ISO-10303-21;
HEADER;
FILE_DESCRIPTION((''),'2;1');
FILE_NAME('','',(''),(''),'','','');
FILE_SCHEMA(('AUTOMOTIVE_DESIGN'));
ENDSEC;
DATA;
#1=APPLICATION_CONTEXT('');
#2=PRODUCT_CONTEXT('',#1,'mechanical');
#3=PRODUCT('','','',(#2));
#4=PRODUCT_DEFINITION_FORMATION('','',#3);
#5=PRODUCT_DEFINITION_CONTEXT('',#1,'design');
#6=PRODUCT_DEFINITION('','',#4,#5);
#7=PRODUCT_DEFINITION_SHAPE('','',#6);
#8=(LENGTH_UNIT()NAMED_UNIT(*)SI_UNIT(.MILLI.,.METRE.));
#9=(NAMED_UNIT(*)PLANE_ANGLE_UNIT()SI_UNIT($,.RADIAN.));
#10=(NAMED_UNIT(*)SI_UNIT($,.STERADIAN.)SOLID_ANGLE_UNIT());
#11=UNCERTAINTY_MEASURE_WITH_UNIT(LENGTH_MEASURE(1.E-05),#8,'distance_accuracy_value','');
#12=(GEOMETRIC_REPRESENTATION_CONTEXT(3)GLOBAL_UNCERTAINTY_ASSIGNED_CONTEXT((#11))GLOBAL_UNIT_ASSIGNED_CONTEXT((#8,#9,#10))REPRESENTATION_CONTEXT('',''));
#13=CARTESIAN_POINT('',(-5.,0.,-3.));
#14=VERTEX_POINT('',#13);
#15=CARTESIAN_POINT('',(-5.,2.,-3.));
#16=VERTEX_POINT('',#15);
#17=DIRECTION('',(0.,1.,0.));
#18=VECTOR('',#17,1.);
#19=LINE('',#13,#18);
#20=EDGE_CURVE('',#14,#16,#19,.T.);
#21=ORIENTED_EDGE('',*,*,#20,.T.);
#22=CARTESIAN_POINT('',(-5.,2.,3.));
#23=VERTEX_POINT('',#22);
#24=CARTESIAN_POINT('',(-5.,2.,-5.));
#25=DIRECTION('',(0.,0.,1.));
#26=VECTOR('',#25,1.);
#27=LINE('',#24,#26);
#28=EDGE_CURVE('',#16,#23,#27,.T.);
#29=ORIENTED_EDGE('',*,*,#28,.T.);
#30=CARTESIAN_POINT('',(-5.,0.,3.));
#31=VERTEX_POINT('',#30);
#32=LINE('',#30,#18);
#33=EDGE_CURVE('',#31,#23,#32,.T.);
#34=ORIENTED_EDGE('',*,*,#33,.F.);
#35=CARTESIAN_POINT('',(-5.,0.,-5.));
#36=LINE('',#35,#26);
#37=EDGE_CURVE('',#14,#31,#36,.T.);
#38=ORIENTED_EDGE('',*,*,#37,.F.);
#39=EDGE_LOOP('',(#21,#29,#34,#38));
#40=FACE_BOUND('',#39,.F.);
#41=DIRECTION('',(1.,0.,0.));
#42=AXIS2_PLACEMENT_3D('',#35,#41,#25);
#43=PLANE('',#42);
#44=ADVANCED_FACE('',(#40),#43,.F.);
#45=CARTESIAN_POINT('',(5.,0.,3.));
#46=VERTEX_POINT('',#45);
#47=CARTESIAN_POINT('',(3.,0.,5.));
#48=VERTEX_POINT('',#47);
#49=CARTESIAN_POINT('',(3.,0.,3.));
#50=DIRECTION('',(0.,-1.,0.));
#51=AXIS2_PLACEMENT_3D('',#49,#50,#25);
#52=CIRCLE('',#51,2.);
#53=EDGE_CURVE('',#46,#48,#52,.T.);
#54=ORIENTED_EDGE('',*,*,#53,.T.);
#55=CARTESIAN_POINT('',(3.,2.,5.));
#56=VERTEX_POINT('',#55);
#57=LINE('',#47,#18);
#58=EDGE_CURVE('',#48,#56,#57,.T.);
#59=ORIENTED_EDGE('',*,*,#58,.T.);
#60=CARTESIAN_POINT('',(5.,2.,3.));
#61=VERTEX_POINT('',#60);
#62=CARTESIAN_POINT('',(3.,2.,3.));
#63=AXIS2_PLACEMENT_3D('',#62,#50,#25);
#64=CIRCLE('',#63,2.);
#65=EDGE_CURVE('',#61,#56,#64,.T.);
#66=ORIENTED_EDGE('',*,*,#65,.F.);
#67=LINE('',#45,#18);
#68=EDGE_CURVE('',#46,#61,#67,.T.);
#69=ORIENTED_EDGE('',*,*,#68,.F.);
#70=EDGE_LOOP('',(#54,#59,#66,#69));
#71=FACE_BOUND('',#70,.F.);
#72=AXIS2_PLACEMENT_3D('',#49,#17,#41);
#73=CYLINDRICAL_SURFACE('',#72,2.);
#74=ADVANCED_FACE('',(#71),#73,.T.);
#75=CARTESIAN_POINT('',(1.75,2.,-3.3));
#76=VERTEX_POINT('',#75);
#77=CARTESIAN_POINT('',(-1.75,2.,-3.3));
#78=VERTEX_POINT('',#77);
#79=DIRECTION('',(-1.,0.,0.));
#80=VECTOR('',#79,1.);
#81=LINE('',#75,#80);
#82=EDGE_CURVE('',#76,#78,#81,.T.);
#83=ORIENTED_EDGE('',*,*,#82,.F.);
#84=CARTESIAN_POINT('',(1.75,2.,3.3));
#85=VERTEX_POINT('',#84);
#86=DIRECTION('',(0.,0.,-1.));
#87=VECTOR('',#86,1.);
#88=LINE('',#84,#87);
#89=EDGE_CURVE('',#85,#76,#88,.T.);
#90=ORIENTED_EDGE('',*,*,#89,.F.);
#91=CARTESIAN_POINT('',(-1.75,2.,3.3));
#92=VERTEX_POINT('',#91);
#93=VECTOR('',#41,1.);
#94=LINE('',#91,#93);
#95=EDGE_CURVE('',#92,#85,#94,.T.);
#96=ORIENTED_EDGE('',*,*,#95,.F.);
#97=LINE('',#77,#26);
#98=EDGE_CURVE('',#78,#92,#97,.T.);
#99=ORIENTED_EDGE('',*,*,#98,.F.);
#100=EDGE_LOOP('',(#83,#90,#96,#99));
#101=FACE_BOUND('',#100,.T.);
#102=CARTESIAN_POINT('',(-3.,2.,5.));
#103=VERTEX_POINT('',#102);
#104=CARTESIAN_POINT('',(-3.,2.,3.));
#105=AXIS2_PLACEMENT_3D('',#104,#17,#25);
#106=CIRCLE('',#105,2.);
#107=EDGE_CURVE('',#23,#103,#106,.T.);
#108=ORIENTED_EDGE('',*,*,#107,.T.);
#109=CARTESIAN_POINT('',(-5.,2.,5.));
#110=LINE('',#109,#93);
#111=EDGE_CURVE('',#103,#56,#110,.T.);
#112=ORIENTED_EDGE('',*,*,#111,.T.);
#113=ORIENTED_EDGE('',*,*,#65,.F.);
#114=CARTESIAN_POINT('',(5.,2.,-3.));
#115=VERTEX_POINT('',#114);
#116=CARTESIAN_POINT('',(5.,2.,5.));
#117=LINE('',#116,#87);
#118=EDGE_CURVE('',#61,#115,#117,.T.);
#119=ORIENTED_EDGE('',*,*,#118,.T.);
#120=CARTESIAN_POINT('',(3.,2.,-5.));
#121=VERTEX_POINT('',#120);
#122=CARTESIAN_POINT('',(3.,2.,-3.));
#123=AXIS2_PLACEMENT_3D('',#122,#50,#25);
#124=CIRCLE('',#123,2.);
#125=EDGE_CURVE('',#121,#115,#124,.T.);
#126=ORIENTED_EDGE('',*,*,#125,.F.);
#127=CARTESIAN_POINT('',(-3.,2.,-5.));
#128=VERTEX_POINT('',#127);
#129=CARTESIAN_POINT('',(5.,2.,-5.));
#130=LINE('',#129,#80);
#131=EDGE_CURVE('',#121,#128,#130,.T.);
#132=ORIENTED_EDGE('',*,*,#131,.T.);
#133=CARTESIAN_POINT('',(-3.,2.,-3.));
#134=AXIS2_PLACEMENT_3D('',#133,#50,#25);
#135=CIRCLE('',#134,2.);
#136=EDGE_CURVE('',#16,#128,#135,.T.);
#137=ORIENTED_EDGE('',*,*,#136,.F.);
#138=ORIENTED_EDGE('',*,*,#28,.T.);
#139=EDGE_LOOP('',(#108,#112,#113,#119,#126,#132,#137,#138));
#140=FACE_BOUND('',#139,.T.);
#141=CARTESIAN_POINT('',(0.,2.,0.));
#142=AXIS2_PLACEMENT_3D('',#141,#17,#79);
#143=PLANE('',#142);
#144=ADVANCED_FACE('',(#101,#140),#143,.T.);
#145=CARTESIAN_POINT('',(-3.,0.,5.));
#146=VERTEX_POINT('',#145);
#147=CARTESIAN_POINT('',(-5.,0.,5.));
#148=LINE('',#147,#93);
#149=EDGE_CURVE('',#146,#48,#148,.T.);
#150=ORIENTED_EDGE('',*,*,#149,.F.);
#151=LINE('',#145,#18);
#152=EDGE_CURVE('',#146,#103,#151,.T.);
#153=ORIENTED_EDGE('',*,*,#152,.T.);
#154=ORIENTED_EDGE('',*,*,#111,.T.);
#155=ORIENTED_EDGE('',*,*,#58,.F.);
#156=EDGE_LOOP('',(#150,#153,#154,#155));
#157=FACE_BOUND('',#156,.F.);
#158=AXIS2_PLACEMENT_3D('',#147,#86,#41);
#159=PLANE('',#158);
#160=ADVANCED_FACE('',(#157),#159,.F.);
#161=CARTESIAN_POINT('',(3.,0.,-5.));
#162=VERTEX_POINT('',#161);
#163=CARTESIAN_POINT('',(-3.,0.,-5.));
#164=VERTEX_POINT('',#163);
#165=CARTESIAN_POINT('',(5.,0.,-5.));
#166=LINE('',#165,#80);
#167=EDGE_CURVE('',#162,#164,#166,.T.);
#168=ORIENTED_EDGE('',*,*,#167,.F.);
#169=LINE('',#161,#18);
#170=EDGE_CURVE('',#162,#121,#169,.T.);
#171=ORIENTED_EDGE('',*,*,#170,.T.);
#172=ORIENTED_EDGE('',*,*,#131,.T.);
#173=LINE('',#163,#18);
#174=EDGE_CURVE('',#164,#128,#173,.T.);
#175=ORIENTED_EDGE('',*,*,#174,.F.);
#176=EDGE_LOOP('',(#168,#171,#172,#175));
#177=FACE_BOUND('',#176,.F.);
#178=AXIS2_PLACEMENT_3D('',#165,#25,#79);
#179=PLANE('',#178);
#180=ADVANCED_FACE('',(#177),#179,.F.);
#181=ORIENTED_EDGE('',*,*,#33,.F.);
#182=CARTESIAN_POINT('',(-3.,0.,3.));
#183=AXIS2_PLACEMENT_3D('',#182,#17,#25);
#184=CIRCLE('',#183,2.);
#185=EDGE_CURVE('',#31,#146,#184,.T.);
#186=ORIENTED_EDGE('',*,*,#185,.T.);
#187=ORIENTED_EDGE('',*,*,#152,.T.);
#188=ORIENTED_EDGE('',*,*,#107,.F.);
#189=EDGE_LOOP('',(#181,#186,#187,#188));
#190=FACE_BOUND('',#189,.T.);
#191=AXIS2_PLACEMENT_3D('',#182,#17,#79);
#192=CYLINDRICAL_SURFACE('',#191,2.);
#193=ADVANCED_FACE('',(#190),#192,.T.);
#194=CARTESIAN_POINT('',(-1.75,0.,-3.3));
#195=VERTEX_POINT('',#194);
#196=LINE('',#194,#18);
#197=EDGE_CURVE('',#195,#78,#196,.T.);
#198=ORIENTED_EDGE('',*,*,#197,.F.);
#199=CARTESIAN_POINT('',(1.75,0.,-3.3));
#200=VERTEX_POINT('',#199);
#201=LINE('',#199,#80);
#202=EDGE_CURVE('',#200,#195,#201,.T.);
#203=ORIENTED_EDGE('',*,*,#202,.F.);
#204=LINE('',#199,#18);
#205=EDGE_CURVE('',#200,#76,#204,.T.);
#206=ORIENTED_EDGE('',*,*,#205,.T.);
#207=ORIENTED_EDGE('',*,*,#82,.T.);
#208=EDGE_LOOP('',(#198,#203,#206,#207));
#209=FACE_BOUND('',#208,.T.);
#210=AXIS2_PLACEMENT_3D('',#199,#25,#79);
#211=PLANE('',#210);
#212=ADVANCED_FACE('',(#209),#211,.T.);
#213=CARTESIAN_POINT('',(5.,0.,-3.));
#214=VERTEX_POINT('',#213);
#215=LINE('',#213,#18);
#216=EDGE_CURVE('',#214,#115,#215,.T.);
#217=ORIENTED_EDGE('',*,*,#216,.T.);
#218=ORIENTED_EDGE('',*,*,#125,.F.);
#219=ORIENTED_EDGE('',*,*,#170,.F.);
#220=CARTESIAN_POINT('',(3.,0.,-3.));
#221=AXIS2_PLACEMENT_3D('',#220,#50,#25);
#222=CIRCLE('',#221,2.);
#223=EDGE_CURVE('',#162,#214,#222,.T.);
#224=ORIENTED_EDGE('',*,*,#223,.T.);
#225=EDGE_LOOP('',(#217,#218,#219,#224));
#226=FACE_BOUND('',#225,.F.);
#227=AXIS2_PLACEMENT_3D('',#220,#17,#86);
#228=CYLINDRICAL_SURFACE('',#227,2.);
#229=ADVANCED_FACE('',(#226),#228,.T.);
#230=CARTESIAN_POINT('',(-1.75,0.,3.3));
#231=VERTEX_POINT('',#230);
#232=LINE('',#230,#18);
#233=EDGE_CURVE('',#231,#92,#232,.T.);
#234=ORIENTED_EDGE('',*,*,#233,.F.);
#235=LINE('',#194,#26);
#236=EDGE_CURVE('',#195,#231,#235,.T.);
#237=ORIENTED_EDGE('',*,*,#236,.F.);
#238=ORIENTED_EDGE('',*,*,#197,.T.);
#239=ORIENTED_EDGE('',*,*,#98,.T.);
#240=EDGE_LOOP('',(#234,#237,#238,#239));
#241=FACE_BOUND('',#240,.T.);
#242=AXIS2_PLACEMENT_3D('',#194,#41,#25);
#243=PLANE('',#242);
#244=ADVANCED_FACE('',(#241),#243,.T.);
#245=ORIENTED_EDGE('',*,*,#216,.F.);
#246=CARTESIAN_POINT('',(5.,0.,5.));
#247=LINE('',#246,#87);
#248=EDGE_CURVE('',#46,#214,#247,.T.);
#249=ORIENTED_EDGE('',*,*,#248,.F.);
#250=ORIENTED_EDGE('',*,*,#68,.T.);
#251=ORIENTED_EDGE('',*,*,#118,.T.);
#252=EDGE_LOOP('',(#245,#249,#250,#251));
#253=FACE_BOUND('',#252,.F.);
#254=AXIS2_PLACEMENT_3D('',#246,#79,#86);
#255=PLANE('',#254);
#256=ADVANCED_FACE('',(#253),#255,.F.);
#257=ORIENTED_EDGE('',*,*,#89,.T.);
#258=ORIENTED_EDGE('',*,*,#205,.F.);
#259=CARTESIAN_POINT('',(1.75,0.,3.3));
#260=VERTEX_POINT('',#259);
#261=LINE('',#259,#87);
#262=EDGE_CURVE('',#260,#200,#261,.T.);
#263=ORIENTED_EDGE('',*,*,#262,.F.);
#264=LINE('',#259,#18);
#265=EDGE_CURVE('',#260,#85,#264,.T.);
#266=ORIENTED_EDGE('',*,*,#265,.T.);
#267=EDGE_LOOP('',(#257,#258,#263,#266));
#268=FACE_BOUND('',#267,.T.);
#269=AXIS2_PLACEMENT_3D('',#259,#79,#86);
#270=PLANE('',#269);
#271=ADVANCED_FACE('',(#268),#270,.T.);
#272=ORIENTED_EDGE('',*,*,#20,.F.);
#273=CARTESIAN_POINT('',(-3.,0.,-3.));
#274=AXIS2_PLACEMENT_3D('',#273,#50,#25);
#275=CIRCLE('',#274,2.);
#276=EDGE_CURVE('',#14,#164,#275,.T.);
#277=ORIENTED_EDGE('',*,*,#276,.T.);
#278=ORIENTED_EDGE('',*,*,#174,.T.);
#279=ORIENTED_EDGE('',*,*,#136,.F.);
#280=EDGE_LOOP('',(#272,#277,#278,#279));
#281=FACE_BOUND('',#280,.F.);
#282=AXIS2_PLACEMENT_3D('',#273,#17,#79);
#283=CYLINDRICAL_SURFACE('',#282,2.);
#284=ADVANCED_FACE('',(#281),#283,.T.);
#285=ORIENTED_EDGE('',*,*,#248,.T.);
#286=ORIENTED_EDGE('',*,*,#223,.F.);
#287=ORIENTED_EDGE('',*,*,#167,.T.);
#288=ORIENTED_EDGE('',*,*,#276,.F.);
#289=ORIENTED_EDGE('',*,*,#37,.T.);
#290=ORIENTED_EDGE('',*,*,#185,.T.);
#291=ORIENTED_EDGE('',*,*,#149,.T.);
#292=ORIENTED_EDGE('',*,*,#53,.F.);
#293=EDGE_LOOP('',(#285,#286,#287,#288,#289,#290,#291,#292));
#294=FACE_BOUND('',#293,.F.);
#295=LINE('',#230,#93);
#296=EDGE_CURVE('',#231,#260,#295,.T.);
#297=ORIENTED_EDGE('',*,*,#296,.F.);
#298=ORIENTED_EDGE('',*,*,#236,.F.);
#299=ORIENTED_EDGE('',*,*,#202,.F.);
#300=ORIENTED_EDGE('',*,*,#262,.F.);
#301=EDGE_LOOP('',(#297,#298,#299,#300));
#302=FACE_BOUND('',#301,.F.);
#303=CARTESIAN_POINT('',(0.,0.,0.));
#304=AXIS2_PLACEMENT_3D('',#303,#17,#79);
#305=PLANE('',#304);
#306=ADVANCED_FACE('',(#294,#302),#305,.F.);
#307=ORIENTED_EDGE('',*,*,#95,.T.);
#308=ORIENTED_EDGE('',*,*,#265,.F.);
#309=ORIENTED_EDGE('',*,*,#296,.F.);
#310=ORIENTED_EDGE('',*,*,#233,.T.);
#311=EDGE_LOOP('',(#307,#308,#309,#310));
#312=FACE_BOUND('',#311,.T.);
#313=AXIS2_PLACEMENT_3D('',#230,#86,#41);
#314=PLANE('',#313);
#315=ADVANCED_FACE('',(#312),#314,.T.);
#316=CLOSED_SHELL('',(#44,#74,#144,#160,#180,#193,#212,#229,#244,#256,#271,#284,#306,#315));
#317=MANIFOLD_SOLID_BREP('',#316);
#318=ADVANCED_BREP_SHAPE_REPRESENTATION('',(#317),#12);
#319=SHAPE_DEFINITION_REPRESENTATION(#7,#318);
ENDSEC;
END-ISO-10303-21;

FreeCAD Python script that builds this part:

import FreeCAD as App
import Part
import Sketcher

V = App.Vector
Q = App.Units.Quantity


def edges_at(feature, points):
    """Names of the edges that pass closest to the given points."""
    edges = feature.Shape.Edges
    near = lambda p: min(range(len(edges)), key=lambda i: edges[i].distToShape(Part.Vertex(*p))[0])
    return sorted({f"Edge{near(p) + 1}" for p in points})


def add_polygon(sketch, points):
    """Adds a closed chain of lines whose ends are joined by coincident constraints."""
    first, n = sketch.GeometryCount, len(points)
    for a, b in zip(points, points[1:] + points[:1]):
        sketch.addGeometry(Part.LineSegment(App.Vector(*a, 0), App.Vector(*b, 0)), False)
    for i in range(n):
        sketch.addConstraint(Sketcher.Constraint("Coincident", first + i, 2, first + (i + 1) % n, 1))

doc = App.newDocument("Part")
body = doc.addObject("PartDesign::Body", "Body")

sketch1 = body.newObject("Sketcher::SketchObject", "Sketch")
sketch1.AttachmentSupport = (doc.getObject("XZ_Plane"), [""])
sketch1.MapMode = "FlatFace"
add_polygon(sketch1, [(-5, -5), (-5, 5), (5, 5), (5, -5)])
add_polygon(sketch1, [(-1.8, -3.3), (1.8, -3.3), (1.8, 3.3), (-1.8, 3.3)])
sketch1.addConstraint([
    Sketcher.Constraint("Vertical", 0),
    Sketcher.Constraint("Horizontal", 1),
    Sketcher.Constraint("Vertical", 2),
    Sketcher.Constraint("Horizontal", 3),
    Sketcher.Constraint("Horizontal", 4),
    Sketcher.Constraint("Vertical", 5),
    Sketcher.Constraint("Horizontal", 6),
    Sketcher.Constraint("Vertical", 7),
    Sketcher.Constraint("Symmetric", 0, 2, 2, 2, -1, 1),
    Sketcher.Constraint("Symmetric", 4, 2, 6, 2, -1, 1),
    Sketcher.Constraint("Equal", 3, 0),
    Sketcher.Constraint("DistanceX", 1, 1, 1, 2, Q("10 mm")),
    Sketcher.Constraint("DistanceX", 4, 1, 4, 2, Q("3.5 mm")),
    Sketcher.Constraint("DistanceY", 5, 1, 5, 2, Q("6.6 mm")),
])
pad1 = body.newObject("PartDesign::Pad", "Pad")
pad1.Profile = sketch1
pad1.Length = 2
pad1.Reversed = True
doc.recompute()

fillet = body.newObject("PartDesign::Fillet", "Fillet")
fillet.Base = (pad1, edges_at(pad1, [
    (5, 1, 5),
    (-5, 1, 5),
    (-5, 1, -5),
    (5, 1, -5),
]))
fillet.Radius = 2

doc.recompute()
